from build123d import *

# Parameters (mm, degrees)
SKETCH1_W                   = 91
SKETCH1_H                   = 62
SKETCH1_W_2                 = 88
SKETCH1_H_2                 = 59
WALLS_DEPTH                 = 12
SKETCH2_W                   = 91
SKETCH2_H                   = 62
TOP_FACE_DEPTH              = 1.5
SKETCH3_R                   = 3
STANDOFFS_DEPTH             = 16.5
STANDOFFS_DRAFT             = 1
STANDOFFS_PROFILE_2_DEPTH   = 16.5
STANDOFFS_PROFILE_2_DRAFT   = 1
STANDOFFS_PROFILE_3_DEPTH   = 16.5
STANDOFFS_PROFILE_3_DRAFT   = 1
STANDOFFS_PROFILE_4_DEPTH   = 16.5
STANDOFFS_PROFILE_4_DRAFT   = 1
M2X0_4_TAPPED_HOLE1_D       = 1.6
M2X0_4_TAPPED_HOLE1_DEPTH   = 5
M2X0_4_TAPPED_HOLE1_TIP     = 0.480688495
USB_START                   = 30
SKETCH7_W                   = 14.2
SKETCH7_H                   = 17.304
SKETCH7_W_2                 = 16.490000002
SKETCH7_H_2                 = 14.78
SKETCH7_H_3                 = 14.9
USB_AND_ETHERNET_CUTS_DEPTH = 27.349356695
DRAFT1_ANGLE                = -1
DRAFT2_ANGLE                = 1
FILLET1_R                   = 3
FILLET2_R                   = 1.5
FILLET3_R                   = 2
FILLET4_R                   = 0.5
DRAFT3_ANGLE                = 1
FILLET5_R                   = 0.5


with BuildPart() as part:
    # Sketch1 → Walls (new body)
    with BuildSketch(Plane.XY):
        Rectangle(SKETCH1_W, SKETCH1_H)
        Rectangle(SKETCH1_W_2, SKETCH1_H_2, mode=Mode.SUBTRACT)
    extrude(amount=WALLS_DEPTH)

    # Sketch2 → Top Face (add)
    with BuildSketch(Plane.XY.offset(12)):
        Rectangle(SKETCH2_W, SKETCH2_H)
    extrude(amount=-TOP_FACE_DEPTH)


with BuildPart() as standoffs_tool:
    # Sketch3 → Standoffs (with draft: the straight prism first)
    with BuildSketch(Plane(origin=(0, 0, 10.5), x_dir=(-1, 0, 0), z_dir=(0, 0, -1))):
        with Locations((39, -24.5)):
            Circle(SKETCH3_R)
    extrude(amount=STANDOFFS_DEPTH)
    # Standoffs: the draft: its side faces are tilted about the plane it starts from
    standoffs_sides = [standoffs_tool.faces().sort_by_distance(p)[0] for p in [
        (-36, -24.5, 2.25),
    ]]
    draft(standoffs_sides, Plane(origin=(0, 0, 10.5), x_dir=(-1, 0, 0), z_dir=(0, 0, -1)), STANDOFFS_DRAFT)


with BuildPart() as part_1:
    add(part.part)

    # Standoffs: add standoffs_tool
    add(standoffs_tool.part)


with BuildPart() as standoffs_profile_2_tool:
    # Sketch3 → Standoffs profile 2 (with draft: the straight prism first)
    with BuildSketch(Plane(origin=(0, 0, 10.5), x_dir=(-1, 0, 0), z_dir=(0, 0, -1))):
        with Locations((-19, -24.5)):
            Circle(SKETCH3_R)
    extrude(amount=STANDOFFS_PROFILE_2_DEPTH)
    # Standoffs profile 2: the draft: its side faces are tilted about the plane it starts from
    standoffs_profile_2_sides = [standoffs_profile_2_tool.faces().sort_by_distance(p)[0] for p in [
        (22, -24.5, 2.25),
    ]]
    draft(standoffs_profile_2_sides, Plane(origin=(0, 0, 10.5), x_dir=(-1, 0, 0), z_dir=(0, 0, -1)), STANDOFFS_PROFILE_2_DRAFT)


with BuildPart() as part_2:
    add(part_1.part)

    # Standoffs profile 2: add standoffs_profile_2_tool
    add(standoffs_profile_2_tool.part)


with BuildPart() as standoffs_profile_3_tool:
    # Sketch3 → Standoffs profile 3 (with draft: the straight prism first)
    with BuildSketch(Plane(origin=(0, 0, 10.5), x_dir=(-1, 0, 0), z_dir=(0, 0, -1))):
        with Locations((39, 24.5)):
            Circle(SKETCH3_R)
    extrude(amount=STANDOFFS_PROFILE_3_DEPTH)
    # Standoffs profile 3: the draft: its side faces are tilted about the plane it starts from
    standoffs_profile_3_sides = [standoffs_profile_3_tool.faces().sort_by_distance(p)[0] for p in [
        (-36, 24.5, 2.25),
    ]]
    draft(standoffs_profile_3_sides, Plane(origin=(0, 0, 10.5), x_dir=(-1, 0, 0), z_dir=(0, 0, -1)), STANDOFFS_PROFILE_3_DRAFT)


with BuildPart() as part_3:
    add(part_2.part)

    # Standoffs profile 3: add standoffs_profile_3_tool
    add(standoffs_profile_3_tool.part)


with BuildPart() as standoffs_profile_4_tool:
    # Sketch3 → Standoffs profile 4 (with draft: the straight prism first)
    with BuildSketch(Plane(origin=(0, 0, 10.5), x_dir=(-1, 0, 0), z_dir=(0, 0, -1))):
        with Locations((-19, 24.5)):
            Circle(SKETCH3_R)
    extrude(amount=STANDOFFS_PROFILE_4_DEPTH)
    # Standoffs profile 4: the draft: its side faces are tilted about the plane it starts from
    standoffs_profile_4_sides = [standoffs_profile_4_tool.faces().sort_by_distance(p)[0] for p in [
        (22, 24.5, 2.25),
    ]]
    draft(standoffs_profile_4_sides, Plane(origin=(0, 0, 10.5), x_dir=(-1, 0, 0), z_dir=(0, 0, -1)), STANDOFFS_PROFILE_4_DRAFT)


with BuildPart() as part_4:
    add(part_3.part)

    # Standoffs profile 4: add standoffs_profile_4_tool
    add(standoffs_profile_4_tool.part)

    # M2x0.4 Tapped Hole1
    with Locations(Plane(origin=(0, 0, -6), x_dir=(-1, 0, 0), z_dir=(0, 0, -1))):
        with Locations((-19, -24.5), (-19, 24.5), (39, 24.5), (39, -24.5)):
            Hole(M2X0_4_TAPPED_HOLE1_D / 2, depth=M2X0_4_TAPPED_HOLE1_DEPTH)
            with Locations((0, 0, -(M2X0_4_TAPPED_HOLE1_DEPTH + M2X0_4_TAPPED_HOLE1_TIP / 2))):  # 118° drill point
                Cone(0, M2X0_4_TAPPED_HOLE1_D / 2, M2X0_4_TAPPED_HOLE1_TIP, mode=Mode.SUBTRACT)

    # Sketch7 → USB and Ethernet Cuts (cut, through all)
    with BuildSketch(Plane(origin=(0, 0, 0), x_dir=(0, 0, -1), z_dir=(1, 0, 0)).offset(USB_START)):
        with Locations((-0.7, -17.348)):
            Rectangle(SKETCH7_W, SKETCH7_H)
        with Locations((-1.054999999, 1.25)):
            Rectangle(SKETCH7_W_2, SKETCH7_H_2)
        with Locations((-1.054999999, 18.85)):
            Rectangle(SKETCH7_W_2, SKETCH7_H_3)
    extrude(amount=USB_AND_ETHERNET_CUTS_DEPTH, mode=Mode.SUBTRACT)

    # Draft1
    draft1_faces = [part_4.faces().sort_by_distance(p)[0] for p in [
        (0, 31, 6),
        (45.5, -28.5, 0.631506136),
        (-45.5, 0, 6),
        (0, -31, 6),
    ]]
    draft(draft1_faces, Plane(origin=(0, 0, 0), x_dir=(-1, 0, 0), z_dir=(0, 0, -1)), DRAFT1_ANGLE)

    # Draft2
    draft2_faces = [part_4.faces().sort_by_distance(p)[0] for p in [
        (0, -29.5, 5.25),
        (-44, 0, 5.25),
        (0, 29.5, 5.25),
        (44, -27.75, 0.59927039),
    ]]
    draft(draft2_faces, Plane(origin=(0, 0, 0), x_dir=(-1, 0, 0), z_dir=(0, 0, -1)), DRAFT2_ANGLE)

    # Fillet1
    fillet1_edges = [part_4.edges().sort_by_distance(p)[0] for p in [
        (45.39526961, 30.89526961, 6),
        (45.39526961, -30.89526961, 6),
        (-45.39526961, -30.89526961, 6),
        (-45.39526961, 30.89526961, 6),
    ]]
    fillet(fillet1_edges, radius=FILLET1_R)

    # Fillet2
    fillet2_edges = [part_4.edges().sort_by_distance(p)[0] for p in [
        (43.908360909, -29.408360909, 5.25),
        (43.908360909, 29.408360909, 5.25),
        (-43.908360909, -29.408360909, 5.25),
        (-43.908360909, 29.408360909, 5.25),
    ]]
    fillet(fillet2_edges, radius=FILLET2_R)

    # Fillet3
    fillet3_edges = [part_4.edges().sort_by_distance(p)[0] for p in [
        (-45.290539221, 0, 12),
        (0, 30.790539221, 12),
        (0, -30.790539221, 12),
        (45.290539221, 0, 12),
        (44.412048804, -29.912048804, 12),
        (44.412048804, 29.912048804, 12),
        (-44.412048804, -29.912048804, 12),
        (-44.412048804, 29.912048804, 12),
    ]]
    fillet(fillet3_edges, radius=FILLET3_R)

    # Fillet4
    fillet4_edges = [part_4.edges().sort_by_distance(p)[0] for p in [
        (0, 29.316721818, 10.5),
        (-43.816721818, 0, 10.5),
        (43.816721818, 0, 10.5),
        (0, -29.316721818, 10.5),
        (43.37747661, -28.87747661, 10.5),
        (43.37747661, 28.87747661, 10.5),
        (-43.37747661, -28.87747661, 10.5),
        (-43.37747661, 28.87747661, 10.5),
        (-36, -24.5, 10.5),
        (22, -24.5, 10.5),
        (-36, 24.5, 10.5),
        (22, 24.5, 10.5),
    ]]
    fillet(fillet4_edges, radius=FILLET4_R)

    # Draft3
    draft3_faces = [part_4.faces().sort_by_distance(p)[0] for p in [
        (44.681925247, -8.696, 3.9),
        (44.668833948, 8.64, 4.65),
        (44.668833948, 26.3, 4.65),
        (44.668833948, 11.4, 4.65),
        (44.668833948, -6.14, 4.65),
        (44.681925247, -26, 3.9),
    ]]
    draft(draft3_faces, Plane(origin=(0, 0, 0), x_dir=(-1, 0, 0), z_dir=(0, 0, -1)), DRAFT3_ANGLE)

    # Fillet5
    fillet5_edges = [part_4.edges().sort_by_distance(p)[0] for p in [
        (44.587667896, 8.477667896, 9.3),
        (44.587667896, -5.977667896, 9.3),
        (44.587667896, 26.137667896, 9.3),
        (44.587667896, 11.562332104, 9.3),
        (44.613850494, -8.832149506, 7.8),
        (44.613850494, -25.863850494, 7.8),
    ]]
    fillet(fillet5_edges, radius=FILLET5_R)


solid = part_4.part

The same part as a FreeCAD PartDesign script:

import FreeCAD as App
import Part
import Sketcher

V = App.Vector


def edges_at(feature, points):
    """Names of the edges that pass closest to the given points."""
    edges = feature.Shape.Edges
    near = lambda p: min(range(len(edges)), key=lambda i: edges[i].distToShape(Part.Vertex(*p))[0])
    return sorted({f"Edge{near(p) + 1}" for p in points})


def faces_at(feature, points):
    """Names of the faces that lie closest to the given points."""
    faces = feature.Shape.Faces
    near = lambda p: min(range(len(faces)), key=lambda i: faces[i].distToShape(Part.Vertex(*p))[0])
    return sorted({f"Face{near(p) + 1}" for p in points})


def add_polygon(sketch, points):
    """Adds a closed chain of lines whose ends are joined by coincident constraints."""
    first, n = sketch.GeometryCount, len(points)
    for a, b in zip(points, points[1:] + points[:1]):
        sketch.addGeometry(Part.LineSegment(App.Vector(*a, 0), App.Vector(*b, 0)), False)
    for i in range(n):
        sketch.addConstraint(Sketcher.Constraint("Coincident", first + i, 2, first + (i + 1) % n, 1))

doc = App.newDocument("Part")
body = doc.addObject("PartDesign::Body", "Body")

# Sketch on XY plane
sketch1 = doc.addObject("Sketcher::SketchObject", "Sketch")
body.addObject(sketch1)
sketch1.AttachmentSupport = (doc.XY_Plane, [""])
sketch1.MapMode = "FlatFace"
add_polygon(sketch1, [(-46, 31), (-46, -31), (46, -31), (46, 31)])  # lines 0-3
add_polygon(sketch1, [(44, -30), (-44, -30), (-44, 30), (44, 30)])  # lines 4-7
sketch1.addConstraint([
    Sketcher.Constraint("Vertical", 0),
    Sketcher.Constraint("Horizontal", 1),
    Sketcher.Constraint("Vertical", 2),
    Sketcher.Constraint("Horizontal", 3),
    Sketcher.Constraint("Horizontal", 4),
    Sketcher.Constraint("Vertical", 5),
    Sketcher.Constraint("Horizontal", 6),
    Sketcher.Constraint("Vertical", 7),
    Sketcher.Constraint("Symmetric", 0, 2, 2, 2, -1, 1),
    Sketcher.Constraint("Symmetric", 4, 2, 6, 2, -1, 1),
    Sketcher.Constraint("DistanceX", 1, 1, 1, 2, 91.0),
    Sketcher.Constraint("DistanceX", 4, 2, 4, 1, 88.0),
    Sketcher.Constraint("DistanceY", 0, 2, 0, 1, 62.0),
    Sketcher.Constraint("DistanceY", 5, 1, 5, 2, 59.0),
])
pad1 = doc.addObject("PartDesign::Pad", "Pad")
body.addObject(pad1)
pad1.Profile = sketch1
pad1.Length = 12

# Sketch on XY plane
sketch2 = doc.addObject("Sketcher::SketchObject", "Sketch001")
body.addObject(sketch2)
sketch2.AttachmentSupport = (doc.XY_Plane, [""])
sketch2.MapMode = "FlatFace"
sketch2.AttachmentOffset = App.Placement(V(0, 0, 12), App.Rotation())
add_polygon(sketch2, [(-46, 31), (-46, -31), (46, -31), (46, 31)])  # lines 0-3
sketch2.addConstraint([
    Sketcher.Constraint("Vertical", 0),
    Sketcher.Constraint("Horizontal", 1),
    Sketcher.Constraint("Vertical", 2),
    Sketcher.Constraint("Horizontal", 3),
    Sketcher.Constraint("Symmetric", 0, 2, 2, 2, -1, 1),
    Sketcher.Constraint("DistanceX", 1, 1, 1, 2, 91.0),
    Sketcher.Constraint("DistanceY", 0, 2, 0, 1, 62.0),
])
pad2 = doc.addObject("PartDesign::Pad", "Pad001")
body.addObject(pad2)
pad2.Profile = sketch2
pad2.Length = 1.5
pad2.Reversed = True
body2 = doc.addObject("PartDesign::Body", "Body001")

# Sketch on XY plane
sketch3 = doc.addObject("Sketcher::SketchObject", "Sketch002")
body2.addObject(sketch3)
sketch3.AttachmentSupport = (doc.getObject("XY_Plane001"), [""])
sketch3.MapMode = "FlatFace"
sketch3.AttachmentOffset = App.Placement(V(0, 0, 10.5), App.Rotation())
sketch3.addGeometry(Part.Circle(V(-39, -24.5, 0), V(0, 0, 1), 3), False)
sketch3.addConstraint([
    Sketcher.Constraint("Diameter", 0, 6.0),
    Sketcher.Constraint("DistanceX", 0, 3, -1, 1, 39.0),
    Sketcher.Constraint("DistanceY", 0, 3, -1, 1, 24.5),
])
pad3 = doc.addObject("PartDesign::Pad", "Pad002")
body2.addObject(pad3)
pad3.Profile = sketch3
pad3.Length = 16.5
pad3.Reversed = True
doc.recompute()

datumplane = doc.addObject("PartDesign::Plane", "DatumPlane")
body2.addObject(datumplane)
datumplane.AttachmentSupport = (doc.getObject("XY_Plane001"), [""])
datumplane.MapMode = "FlatFace"
datumplane.AttachmentOffset = App.Placement(V(0, 0, 10.5), App.Rotation())
draft = doc.addObject("PartDesign::Draft", "Draft")
body2.addObject(draft)
draft.Base = (pad3, faces_at(pad3, [(-36, -24.5, 2.25)]))
draft.NeutralPlane = (datumplane, [""])
draft.Angle = 1
draft.Reversed = True
doc.recompute()

boolean = doc.addObject("PartDesign::Boolean", "Boolean")
body.addObject(boolean)
boolean.Type = "Fuse"
boolean.addObjects([body2])
body3 = doc.addObject("PartDesign::Body", "Body002")

# Sketch on XY plane
sketch4 = doc.addObject("Sketcher::SketchObject", "Sketch003")
body3.addObject(sketch4)
sketch4.AttachmentSupport = (doc.getObject("XY_Plane002"), [""])
sketch4.MapMode = "FlatFace"
sketch4.AttachmentOffset = App.Placement(V(0, 0, 10.5), App.Rotation())
sketch4.addGeometry(Part.Circle(V(19, -24.5, 0), V(0, 0, 1), 3), False)
sketch4.addConstraint([
    Sketcher.Constraint("Diameter", 0, 6.0),
    Sketcher.Constraint("DistanceX", -1, 1, 0, 3, 19.0),
    Sketcher.Constraint("DistanceY", 0, 3, -1, 1, 24.5),
])
pad4 = doc.addObject("PartDesign::Pad", "Pad003")
body3.addObject(pad4)
pad4.Profile = sketch4
pad4.Length = 16.5
pad4.Reversed = True
doc.recompute()

datumplane2 = doc.addObject("PartDesign::Plane", "DatumPlane001")
body3.addObject(datumplane2)
datumplane2.AttachmentSupport = (doc.getObject("XY_Plane002"), [""])
datumplane2.MapMode = "FlatFace"
datumplane2.AttachmentOffset = App.Placement(V(0, 0, 10.5), App.Rotation())
draft2 = doc.addObject("PartDesign::Draft", "Draft001")
body3.addObject(draft2)
draft2.Base = (pad4, faces_at(pad4, [(22, -24.5, 2.25)]))
draft2.NeutralPlane = (datumplane2, [""])
draft2.Angle = 1
draft2.Reversed = True
doc.recompute()

boolean2 = doc.addObject("PartDesign::Boolean", "Boolean001")
body.addObject(boolean2)
boolean2.Type = "Fuse"
boolean2.addObjects([body3])
body4 = doc.addObject("PartDesign::Body", "Body003")

# Sketch on XY plane
sketch5 = doc.addObject("Sketcher::SketchObject", "Sketch004")
body4.addObject(sketch5)
sketch5.AttachmentSupport = (doc.getObject("XY_Plane003"), [""])
sketch5.MapMode = "FlatFace"
sketch5.AttachmentOffset = App.Placement(V(0, 0, 10.5), App.Rotation())
sketch5.addGeometry(Part.Circle(V(-39, 24.5, 0), V(0, 0, 1), 3), False)
sketch5.addConstraint([
    Sketcher.Constraint("Diameter", 0, 6.0),
    Sketcher.Constraint("DistanceX", 0, 3, -1, 1, 39.0),
    Sketcher.Constraint("DistanceY", -1, 1, 0, 3, 24.5),
])
pad5 = doc.addObject("PartDesign::Pad", "Pad004")
body4.addObject(pad5)
pad5.Profile = sketch5
pad5.Length = 16.5
pad5.Reversed = True
doc.recompute()

datumplane3 = doc.addObject("PartDesign::Plane", "DatumPlane002")
body4.addObject(datumplane3)
datumplane3.AttachmentSupport = (doc.getObject("XY_Plane003"), [""])
datumplane3.MapMode = "FlatFace"
datumplane3.AttachmentOffset = App.Placement(V(0, 0, 10.5), App.Rotation())
draft3 = doc.addObject("PartDesign::Draft", "Draft002")
body4.addObject(draft3)
draft3.Base = (pad5, faces_at(pad5, [(-36, 24.5, 2.25)]))
draft3.NeutralPlane = (datumplane3, [""])
draft3.Angle = 1
draft3.Reversed = True
doc.recompute()

boolean3 = doc.addObject("PartDesign::Boolean", "Boolean002")
body.addObject(boolean3)
boolean3.Type = "Fuse"
boolean3.addObjects([body4])
body5 = doc.addObject("PartDesign::Body", "Body004")

# Sketch on XY plane
sketch6 = doc.addObject("Sketcher::SketchObject", "Sketch005")
body5.addObject(sketch6)
sketch6.AttachmentSupport = (doc.getObject("XY_Plane004"), [""])
sketch6.MapMode = "FlatFace"
sketch6.AttachmentOffset = App.Placement(V(0, 0, 10.5), App.Rotation())
sketch6.addGeometry(Part.Circle(V(19, 24.5, 0), V(0, 0, 1), 3), False)
sketch6.addConstraint([
    Sketcher.Constraint("Diameter", 0, 6.0),
    Sketcher.Constraint("DistanceX", -1, 1, 0, 3, 19.0),
    Sketcher.Constraint("DistanceY", -1, 1, 0, 3, 24.5),
])
pad6 = doc.addObject("PartDesign::Pad", "Pad005")
body5.addObject(pad6)
pad6.Profile = sketch6
pad6.Length = 16.5
pad6.Reversed = True
doc.recompute()

datumplane4 = doc.addObject("PartDesign::Plane", "DatumPlane003")
body5.addObject(datumplane4)
datumplane4.AttachmentSupport = (doc.getObject("XY_Plane004"), [""])
datumplane4.MapMode = "FlatFace"
datumplane4.AttachmentOffset = App.Placement(V(0, 0, 10.5), App.Rotation())
draft4 = doc.addObject("PartDesign::Draft", "Draft003")
body5.addObject(draft4)
draft4.Base = (pad6, faces_at(pad6, [(22, 24.5, 2.25)]))
draft4.NeutralPlane = (datumplane4, [""])
draft4.Angle = 1
draft4.Reversed = True
doc.recompute()

boolean4 = doc.addObject("PartDesign::Boolean", "Boolean003")
body.addObject(boolean4)
boolean4.Type = "Fuse"
boolean4.addObjects([body5])

# Sketch on XY plane
sketch7 = doc.addObject("Sketcher::SketchObject", "Sketch006")
body.addObject(sketch7)
sketch7.AttachmentSupport = (doc.XY_Plane, [""])
sketch7.MapMode = "FlatFace"
sketch7.AttachmentOffset = App.Placement(V(0, 0, -6), App.Rotation())
sketch7.addGeometry([
    Part.Circle(V(19, -24.5, 0), V(0, 0, 1), 0.8),
    Part.Circle(V(19, 24.5, 0), V(0, 0, 1), 0.8),
    Part.Circle(V(-39, 24.5, 0), V(0, 0, 1), 0.8),
    Part.Circle(V(-39, -24.5, 0), V(0, 0, 1), 0.8),
], False)
sketch7.addConstraint([
    Sketcher.Constraint("Equal", 0, 1),
    Sketcher.Constraint("Equal", 1, 2),
    Sketcher.Constraint("Equal", 2, 3),
    Sketcher.Constraint("Symmetric", 0, 3, 1, 3, -1),
    Sketcher.Constraint("Symmetric", 2, 3, 3, 3, -1),
    Sketcher.Constraint("Horizontal", 1, 3, 2, 3),
    Sketcher.Constraint("Diameter", 0, 1.6),
    Sketcher.Constraint("DistanceX", -1, 1, 0, 3, 19.0),
    Sketcher.Constraint("DistanceX", 2, 3, -1, 1, 39.0),
    Sketcher.Constraint("DistanceY", 0, 3, 1, 3, 49.0),
])
doc.recompute()
hole = doc.addObject("PartDesign::Hole", "Hole")
body.addObject(hole)
hole.Profile = sketch7
hole.ThreadType = "None"
hole.Diameter = 1.6
hole.DepthType = "Dimension"
hole.Depth = 5
hole.DrillPoint = "Angled"
hole.DrillPointAngle = 118
hole.Reversed = True

# Sketch on YZ plane
sketch8 = doc.addObject("Sketcher::SketchObject", "Sketch007")
body.addObject(sketch8)
sketch8.AttachmentSupport = (doc.YZ_Plane, [""])
sketch8.MapMode = "FlatFace"
sketch8.AttachmentOffset = App.Placement(V(0, 0, 30), App.Rotation())
add_polygon(sketch8, [(-9, 8), (-26, 8), (-26, -6), (-9, -6)])  # lines 0-3
add_polygon(sketch8, [(9, 9), (-6, 9), (-6, -7), (9, -7)])  # lines 4-7
add_polygon(sketch8, [(26, 9), (11, 9), (11, -7), (26, -7)])  # lines 8-11
sketch8.addConstraint([
    Sketcher.Constraint("Horizontal", 0),
    Sketcher.Constraint("Vertical", 1),
    Sketcher.Constraint("Horizontal", 2),
    Sketcher.Constraint("Vertical", 3),
    Sketcher.Constraint("Horizontal", 4),
    Sketcher.Constraint("Vertical", 5),
    Sketcher.Constraint("Horizontal", 6),
    Sketcher.Constraint("Vertical", 7),
    Sketcher.Constraint("Horizontal", 8),
    Sketcher.Constraint("Vertical", 9),
    Sketcher.Constraint("Horizontal", 10),
    Sketcher.Constraint("Vertical", 11),
    Sketcher.Constraint("Horizontal", 7, 2, 8, 2),
    Sketcher.Constraint("Horizontal", 6, 2, 9, 2),
    Sketcher.Constraint("DistanceX", 8, 2, 8, 1, 14.9),
    Sketcher.Constraint("DistanceY", 1, 2, 1, 1, 14.2),
    Sketcher.Constraint("DistanceX", 0, 2, -1, 1, 26.0),
    Sketcher.Constraint("DistanceX", 4, 2, 4, 1, 14.78),
    Sketcher.Constraint("DistanceY", 5, 2, 5, 1, 16.49),
    Sketcher.Constraint("DistanceY", -1, 1, 0, 2, 7.8),
    Sketcher.Constraint("DistanceY", -1, 1, 4, 2, 9.3),
    Sketcher.Constraint("DistanceX", -1, 1, 8, 2, 11.4),
    Sketcher.Constraint("DistanceX", 0, 2, 0, 1, 17.304),
    Sketcher.Constraint("DistanceX", 4, 2, -1, 1, 6.14),
])
pocket1 = doc.addObject("PartDesign::Pocket", "Pocket")
body.addObject(pocket1)
pocket1.Profile = sketch8
pocket1.Type = "ThroughAll"
pocket1.Reversed = True
doc.recompute()

draft5 = doc.addObject("PartDesign::Draft", "Draft004")
body.addObject(draft5)
draft5.Base = (pocket1, faces_at(pocket1, [
    (0, 31, 6),
    (45.5, -12.4, 8.4),
    (-45.5, 0, 6),
    (0, -31, 6),
]))
draft5.NeutralPlane = (doc.XY_Plane, [""])
draft5.Angle = 1
draft5.Reversed = False
doc.recompute()

draft6 = doc.addObject("PartDesign::Draft", "Draft005")
body.addObject(draft6)
draft6.Base = (draft5, faces_at(draft5, [
    (0, -29.5, 5.25),
    (-44, 0, 5.25),
    (0, 29.5, 5.25),
    (44, 0, 9.45),
]))
draft6.NeutralPlane = (doc.XY_Plane, [""])
draft6.Angle = 1
draft6.Reversed = True
doc.recompute()

fillet = doc.addObject("PartDesign::Fillet", "Fillet")
body.addObject(fillet)
fillet.Base = (draft6, edges_at(draft6, [
    (45.395, 30.895, 6),
    (45.395, -30.895, 6),
    (-45.395, -30.895, 6),
    (-45.395, 30.895, 6),
]))
fillet.Radius = 3
doc.recompute()

fillet2 = doc.addObject("PartDesign::Fillet", "Fillet001")
body.addObject(fillet2)
fillet2.Base = (fillet, edges_at(fillet, [
    (43.908, -29.408, 5.25),
    (43.908, 29.408, 5.25),
    (-43.908, -29.408, 5.25),
    (-43.908, 29.408, 5.25),
]))
fillet2.Radius = 1.5
doc.recompute()

fillet3 = doc.addObject("PartDesign::Fillet", "Fillet002")
body.addObject(fillet3)
fillet3.Base = (fillet2, edges_at(fillet2, [
    (-45.291, 0, 12),
    (0, 30.791, 12),
    (0, -30.791, 12),
    (45.291, 0, 12),
    (44.412, -29.912, 12),
    (44.412, 29.912, 12),
    (-44.412, -29.912, 12),
    (-44.412, 29.912, 12),
]))
fillet3.Radius = 2
doc.recompute()

fillet4 = doc.addObject("PartDesign::Fillet", "Fillet003")
body.addObject(fillet4)
fillet4.Base = (fillet3, edges_at(fillet3, [
    (0, 29.317, 10.5),
    (-43.817, 0, 10.5),
    (43.817, 0, 10.5),
    (0, -29.317, 10.5),
    (43.377, -28.877, 10.5),
    (43.377, 28.877, 10.5),
    (-43.377, -28.877, 10.5),
    (-43.377, 28.877, 10.5),
    (-36, -24.5, 10.5),
    (22, -24.5, 10.5),
    (-36, 24.5, 10.5),
    (22, 24.5, 10.5),
]))
fillet4.Radius = 0.5
doc.recompute()

draft7 = doc.addObject("PartDesign::Draft", "Draft006")
body.addObject(draft7)
draft7.Base = (fillet4, faces_at(fillet4, [
    (44.682, -8.696, 3.9),
    (44.669, 8.64, 4.65),
    (44.669, 26.3, 4.65),
    (44.669, 11.4, 4.65),
    (44.669, -6.14, 4.65),
    (44.682, -26, 3.9),
]))
draft7.NeutralPlane = (doc.XY_Plane, [""])
draft7.Angle = 1
draft7.Reversed = True
doc.recompute()

fillet5 = doc.addObject("PartDesign::Fillet", "Fillet004")
body.addObject(fillet5)
fillet5.Base = (draft7, edges_at(draft7, [
    (44.588, 8.478, 9.3),
    (44.588, -5.978, 9.3),
    (44.588, 26.138, 9.3),
    (44.588, 11.562, 9.3),
    (44.614, -8.832, 7.8),
    (44.614, -25.864, 7.8),
]))
fillet5.Radius = 0.5

doc.recompute()
